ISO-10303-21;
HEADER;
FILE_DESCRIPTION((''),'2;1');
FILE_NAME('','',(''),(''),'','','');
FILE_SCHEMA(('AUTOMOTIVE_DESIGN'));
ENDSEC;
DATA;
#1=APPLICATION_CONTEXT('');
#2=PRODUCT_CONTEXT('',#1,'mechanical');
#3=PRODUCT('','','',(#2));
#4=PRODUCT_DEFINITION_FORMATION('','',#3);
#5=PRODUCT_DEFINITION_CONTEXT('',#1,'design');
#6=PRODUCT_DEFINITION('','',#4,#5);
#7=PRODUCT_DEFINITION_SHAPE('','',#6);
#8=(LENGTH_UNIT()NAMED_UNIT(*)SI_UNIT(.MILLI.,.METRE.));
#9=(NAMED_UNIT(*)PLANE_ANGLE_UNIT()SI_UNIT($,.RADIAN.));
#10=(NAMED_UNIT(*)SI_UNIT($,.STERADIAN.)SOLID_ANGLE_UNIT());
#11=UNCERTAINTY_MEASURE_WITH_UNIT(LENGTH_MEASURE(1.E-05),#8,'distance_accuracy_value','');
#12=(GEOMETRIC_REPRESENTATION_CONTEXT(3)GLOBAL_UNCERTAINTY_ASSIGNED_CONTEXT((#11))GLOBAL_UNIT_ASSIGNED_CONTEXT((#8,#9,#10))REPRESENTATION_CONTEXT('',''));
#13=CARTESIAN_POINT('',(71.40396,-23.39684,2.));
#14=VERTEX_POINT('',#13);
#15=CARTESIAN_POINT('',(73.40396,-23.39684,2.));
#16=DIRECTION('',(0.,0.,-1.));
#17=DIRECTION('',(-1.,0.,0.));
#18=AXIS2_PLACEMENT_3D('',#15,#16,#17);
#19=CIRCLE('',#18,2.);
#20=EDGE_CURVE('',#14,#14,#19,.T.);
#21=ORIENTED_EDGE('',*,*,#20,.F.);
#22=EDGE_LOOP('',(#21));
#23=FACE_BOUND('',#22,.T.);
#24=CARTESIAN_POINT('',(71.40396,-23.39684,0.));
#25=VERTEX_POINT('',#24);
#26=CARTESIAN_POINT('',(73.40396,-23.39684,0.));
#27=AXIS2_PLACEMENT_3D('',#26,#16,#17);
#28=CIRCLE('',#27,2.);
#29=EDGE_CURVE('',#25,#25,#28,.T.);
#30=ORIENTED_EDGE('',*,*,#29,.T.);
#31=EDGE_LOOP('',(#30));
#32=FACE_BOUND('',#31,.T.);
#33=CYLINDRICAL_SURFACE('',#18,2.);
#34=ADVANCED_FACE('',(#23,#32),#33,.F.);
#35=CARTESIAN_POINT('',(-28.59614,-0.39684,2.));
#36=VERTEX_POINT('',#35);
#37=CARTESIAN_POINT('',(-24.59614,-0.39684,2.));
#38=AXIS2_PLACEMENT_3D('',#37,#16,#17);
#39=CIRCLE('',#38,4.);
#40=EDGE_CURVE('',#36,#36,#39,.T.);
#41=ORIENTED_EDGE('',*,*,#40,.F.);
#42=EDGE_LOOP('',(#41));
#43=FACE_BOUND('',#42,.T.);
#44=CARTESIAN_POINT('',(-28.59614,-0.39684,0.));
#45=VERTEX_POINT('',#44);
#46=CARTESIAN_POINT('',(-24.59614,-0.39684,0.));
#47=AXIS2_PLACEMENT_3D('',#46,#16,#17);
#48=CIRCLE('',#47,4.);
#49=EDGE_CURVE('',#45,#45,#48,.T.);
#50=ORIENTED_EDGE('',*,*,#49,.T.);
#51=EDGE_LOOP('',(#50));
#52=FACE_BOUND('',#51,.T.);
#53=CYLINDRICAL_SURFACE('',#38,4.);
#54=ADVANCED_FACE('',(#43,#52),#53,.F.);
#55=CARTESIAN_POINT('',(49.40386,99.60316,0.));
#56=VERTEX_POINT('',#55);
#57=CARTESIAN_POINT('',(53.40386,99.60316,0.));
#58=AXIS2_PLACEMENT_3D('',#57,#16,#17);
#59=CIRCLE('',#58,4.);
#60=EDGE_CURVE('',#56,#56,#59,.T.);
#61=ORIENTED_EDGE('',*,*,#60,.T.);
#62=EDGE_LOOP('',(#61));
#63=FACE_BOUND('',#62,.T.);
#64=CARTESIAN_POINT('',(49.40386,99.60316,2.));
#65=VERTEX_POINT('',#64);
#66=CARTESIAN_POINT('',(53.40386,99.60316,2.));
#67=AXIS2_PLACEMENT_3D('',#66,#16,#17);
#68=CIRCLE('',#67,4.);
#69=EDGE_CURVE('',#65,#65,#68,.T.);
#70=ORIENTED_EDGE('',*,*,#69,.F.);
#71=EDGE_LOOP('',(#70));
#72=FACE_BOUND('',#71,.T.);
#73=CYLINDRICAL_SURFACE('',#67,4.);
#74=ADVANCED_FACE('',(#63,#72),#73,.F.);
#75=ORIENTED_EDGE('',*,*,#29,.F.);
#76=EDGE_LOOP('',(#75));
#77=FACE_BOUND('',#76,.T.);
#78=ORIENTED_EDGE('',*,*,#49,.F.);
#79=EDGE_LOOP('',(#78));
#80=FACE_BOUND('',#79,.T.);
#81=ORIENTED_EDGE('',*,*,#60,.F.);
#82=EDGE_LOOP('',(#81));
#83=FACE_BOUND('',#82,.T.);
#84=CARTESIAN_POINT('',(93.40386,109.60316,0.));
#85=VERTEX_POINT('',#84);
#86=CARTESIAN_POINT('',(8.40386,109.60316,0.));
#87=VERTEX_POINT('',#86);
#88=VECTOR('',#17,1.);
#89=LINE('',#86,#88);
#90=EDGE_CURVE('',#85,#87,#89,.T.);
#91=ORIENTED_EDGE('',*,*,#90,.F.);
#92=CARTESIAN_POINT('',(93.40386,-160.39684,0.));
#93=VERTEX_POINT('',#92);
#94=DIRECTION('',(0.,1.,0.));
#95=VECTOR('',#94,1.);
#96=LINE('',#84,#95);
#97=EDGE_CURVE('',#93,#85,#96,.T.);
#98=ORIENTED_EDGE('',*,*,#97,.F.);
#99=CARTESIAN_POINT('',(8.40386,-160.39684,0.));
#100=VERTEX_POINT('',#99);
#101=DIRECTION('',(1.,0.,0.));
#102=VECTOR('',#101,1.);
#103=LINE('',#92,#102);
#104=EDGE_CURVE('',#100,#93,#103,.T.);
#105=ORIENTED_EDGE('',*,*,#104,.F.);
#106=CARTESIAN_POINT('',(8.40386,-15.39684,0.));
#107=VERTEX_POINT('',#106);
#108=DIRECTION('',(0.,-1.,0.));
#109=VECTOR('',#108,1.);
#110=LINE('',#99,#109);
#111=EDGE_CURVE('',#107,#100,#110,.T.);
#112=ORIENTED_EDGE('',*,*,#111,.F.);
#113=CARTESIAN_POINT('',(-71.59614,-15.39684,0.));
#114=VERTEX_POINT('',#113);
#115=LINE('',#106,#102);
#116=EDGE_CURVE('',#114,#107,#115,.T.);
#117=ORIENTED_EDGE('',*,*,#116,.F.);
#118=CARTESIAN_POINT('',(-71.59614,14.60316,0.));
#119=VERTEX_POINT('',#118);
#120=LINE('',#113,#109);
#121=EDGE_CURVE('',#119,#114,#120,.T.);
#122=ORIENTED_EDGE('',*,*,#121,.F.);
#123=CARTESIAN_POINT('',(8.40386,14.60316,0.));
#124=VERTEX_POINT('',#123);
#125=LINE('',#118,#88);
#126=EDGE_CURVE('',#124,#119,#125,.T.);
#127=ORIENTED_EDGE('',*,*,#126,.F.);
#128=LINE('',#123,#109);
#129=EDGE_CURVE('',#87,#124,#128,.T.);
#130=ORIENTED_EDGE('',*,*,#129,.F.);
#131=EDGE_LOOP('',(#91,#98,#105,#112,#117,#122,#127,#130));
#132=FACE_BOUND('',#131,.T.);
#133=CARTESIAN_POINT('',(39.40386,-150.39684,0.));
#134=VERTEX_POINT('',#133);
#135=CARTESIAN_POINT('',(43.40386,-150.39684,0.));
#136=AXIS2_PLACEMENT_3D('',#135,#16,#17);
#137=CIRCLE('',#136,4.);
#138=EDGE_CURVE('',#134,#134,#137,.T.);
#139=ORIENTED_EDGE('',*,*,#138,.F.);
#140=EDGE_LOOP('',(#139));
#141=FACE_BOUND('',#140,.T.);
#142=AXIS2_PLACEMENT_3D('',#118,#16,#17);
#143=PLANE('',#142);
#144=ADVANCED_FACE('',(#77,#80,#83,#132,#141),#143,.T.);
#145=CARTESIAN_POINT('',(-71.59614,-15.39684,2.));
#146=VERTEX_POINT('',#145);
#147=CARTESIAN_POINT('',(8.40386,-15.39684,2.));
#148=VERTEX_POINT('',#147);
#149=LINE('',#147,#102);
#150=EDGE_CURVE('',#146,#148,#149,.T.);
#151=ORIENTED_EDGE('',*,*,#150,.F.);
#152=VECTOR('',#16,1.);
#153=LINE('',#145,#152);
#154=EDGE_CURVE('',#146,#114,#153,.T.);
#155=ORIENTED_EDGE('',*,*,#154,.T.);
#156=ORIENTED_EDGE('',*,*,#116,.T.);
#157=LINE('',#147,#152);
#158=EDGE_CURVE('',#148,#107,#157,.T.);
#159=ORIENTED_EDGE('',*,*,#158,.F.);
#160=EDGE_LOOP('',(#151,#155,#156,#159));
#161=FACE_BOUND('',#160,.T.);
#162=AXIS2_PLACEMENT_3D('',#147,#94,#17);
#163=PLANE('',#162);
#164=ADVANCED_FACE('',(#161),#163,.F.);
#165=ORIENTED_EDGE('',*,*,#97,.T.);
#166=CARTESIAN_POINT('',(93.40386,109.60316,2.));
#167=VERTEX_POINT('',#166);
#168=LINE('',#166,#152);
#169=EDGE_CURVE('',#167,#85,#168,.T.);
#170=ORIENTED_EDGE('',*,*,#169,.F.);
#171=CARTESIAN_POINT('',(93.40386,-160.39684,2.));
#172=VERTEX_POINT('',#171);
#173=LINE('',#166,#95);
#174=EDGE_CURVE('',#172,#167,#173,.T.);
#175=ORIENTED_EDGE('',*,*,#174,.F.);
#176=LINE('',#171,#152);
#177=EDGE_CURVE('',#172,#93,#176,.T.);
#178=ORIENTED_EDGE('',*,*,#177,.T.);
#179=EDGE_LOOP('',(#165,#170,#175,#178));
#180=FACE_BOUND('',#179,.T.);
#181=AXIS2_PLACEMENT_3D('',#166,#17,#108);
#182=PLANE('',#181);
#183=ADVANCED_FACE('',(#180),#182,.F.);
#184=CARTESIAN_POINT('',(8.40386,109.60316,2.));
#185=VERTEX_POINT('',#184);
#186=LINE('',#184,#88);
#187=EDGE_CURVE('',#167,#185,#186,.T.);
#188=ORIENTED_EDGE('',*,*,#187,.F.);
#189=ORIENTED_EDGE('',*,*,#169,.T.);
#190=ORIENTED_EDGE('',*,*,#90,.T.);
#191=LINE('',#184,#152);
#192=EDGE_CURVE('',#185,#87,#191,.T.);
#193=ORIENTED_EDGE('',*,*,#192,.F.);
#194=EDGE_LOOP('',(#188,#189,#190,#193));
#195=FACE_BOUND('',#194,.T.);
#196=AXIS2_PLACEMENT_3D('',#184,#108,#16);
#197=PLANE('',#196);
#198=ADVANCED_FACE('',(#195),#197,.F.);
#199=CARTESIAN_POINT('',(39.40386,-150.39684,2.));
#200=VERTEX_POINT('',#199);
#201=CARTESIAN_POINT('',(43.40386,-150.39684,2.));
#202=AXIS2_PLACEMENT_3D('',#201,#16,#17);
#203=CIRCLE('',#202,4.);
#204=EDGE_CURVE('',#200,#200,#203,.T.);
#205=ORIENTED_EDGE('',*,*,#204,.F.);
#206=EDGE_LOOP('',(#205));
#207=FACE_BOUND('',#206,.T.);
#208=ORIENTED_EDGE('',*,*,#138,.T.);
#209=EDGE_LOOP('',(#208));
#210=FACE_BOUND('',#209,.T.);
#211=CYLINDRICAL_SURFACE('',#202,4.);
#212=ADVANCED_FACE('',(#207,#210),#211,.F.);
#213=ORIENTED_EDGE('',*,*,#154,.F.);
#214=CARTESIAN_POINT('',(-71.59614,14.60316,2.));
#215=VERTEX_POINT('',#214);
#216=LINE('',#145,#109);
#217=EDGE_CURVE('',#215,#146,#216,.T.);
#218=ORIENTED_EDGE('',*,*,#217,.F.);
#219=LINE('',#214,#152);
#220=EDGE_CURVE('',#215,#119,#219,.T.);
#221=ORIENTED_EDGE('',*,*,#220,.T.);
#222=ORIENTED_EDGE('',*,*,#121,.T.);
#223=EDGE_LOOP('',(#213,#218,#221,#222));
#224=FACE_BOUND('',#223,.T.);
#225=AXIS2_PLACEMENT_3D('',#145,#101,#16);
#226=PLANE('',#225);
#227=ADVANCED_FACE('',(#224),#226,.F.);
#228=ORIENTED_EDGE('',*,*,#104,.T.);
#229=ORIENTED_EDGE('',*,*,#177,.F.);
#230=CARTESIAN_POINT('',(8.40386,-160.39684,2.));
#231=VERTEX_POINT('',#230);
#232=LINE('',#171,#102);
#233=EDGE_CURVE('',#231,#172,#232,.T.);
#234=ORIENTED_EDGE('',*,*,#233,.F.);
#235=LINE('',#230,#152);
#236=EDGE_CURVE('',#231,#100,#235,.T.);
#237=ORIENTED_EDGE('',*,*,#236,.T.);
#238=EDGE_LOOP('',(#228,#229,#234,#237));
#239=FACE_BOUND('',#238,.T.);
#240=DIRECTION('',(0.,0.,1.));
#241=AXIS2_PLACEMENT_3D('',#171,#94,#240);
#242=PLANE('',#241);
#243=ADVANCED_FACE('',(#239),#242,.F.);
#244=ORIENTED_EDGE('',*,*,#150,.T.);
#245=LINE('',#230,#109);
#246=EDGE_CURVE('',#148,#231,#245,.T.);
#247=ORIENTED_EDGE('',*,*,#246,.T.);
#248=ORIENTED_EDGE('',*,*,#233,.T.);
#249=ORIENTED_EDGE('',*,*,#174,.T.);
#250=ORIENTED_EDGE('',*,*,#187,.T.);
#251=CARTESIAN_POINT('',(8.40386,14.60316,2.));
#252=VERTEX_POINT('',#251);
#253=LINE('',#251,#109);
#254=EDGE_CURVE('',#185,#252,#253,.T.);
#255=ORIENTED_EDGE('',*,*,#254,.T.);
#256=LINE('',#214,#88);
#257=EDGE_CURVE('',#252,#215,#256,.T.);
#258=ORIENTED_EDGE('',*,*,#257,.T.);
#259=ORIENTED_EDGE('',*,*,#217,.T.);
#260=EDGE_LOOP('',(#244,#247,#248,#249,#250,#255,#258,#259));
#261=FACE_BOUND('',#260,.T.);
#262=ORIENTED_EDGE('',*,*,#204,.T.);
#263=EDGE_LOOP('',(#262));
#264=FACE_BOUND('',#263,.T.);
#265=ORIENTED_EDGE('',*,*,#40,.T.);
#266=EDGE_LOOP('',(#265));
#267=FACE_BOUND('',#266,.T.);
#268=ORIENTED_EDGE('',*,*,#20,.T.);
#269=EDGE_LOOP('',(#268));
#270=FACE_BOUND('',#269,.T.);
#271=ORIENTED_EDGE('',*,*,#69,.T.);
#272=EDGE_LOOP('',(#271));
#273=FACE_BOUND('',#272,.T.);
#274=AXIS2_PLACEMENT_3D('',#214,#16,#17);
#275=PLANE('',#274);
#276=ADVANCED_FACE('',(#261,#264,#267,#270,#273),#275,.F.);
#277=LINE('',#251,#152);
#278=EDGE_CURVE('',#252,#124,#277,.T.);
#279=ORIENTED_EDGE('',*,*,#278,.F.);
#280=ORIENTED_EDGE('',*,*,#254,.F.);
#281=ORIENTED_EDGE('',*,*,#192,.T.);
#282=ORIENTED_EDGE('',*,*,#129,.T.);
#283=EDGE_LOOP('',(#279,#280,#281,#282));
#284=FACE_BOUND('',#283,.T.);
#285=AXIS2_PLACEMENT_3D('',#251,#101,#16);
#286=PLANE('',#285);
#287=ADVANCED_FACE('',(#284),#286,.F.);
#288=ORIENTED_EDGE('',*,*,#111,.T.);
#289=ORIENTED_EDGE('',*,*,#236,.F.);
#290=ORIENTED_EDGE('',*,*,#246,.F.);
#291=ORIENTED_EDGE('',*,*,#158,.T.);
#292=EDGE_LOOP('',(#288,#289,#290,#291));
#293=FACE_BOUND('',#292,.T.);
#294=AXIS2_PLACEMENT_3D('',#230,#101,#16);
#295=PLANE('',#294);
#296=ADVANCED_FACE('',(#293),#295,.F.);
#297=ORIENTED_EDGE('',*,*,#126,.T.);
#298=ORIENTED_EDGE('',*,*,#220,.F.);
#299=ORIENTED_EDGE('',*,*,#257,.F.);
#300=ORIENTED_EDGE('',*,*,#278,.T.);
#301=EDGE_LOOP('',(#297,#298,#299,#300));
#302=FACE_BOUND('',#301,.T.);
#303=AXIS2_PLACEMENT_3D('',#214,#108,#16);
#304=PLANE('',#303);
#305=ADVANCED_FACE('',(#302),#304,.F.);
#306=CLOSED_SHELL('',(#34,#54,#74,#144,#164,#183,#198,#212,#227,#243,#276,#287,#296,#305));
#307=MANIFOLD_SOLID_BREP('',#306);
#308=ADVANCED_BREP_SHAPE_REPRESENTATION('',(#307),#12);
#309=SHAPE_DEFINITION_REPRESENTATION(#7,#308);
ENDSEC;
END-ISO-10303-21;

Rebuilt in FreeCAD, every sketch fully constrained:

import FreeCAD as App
import Part
import Sketcher
from FreeCAD import Vector
Q = App.Units.Quantity


def add_polygon(sketch, points):
    """Adds a closed chain of lines whose ends are joined by coincident constraints."""
    first, n = sketch.GeometryCount, len(points)
    for a, b in zip(points, points[1:] + points[:1]):
        sketch.addGeometry(Part.LineSegment(App.Vector(*a, 0), App.Vector(*b, 0)), False)
    for i in range(n):
        sketch.addConstraint(Sketcher.Constraint("Coincident", first + i, 2, first + (i + 1) % n, 1))

doc = App.newDocument("Part")
body = doc.addObject("PartDesign::Body", "Body")

sketch1 = body.newObject("Sketcher::SketchObject", "Sketch")
sketch1.AttachmentSupport = (doc.getObject("XY_Plane"), [""])
sketch1.MapMode = "FlatFace"
add_polygon(sketch1, [(8.40386, 14.60316), (-71.59614, 14.60316), (-71.59614, -15.39684), (8.40386, -15.39684), (8.40386, -160.39684), (93.40386, -160.39684), (93.40386, 109.60316), (8.40386, 109.60316)])
sketch1.addConstraint([
    Sketcher.Constraint("Horizontal", 0),
    Sketcher.Constraint("Vertical", 1),
    Sketcher.Constraint("Horizontal", 2),
    Sketcher.Constraint("Vertical", 3),
    Sketcher.Constraint("Horizontal", 4),
    Sketcher.Constraint("Vertical", 5),
    Sketcher.Constraint("Horizontal", 6),
    Sketcher.Constraint("Vertical", 7),
    Sketcher.Constraint("Vertical", 3, 2, 6, 2),
    Sketcher.Constraint("DistanceX", 0, 2, 0, 1, Q("80 mm")),
    Sketcher.Constraint("DistanceX", 4, 1, 4, 2, Q("85 mm")),
    Sketcher.Constraint("DistanceY", 1, 2, 1, 1, Q("30 mm")),
    Sketcher.Constraint("DistanceY", 3, 2, 3, 1, Q("145 mm")),
    Sketcher.Constraint("DistanceY", 5, 1, 5, 2, Q("270 mm")),
    Sketcher.Constraint("DistanceX", 0, 2, -1, 1, Q("71.59614 mm")),
    Sketcher.Constraint("DistanceY", -1, 1, 0, 2, Q("14.60316 mm")),
])
pad1 = body.newObject("PartDesign::Pad", "Pad")
pad1.Profile = sketch1
pad1.Length = 2

sketch2 = body.newObject("Sketcher::SketchObject", "Sketch001")
sketch2.AttachmentSupport = (doc.getObject("XY_Plane"), [""])
sketch2.MapMode = "FlatFace"
sketch2.addGeometry([
    Part.Circle(Vector(53.40386, 99.60316, 0), Vector(0, 0, 1), 4),
    Part.Circle(Vector(-24.59614, -0.39684, 0), Vector(0, 0, 1), 4),
    Part.Circle(Vector(73.40396, -23.39684, 0), Vector(0, 0, 1), 2),
    Part.Circle(Vector(43.40386, -150.39684, 0), Vector(0, 0, 1), 4),
], False)
sketch2.addConstraint([
    Sketcher.Constraint("Equal", 0, 1),
    Sketcher.Constraint("Equal", 1, 3),
    Sketcher.Constraint("Diameter", 0, Q("8 mm")),
    Sketcher.Constraint("Diameter", 2, Q("4 mm")),
    Sketcher.Constraint("DistanceX", 1, 3, 0, 3, Q("78 mm")),
    Sketcher.Constraint("DistanceY", 1, 3, 0, 3, Q("100 mm")),
    Sketcher.Constraint("DistanceY", 2, 3, 1, 3, Q("23 mm")),
    Sketcher.Constraint("DistanceY", 3, 3, 2, 3, Q("127 mm")),
    Sketcher.Constraint("DistanceX", 1, 3, 3, 3, Q("68 mm")),
    Sketcher.Constraint("DistanceX", 1, 3, 2, 3, Q("98.0001 mm")),
    Sketcher.Constraint("DistanceX", -1, 1, 0, 3, Q("53.40386 mm")),
    Sketcher.Constraint("DistanceY", -1, 1, 0, 3, Q("99.60316 mm")),
])
pocket1 = body.newObject("PartDesign::Pocket", "Pocket")
pocket1.Profile = sketch2
pocket1.Length = 2
pocket1.Reversed = True

doc.recompute()
